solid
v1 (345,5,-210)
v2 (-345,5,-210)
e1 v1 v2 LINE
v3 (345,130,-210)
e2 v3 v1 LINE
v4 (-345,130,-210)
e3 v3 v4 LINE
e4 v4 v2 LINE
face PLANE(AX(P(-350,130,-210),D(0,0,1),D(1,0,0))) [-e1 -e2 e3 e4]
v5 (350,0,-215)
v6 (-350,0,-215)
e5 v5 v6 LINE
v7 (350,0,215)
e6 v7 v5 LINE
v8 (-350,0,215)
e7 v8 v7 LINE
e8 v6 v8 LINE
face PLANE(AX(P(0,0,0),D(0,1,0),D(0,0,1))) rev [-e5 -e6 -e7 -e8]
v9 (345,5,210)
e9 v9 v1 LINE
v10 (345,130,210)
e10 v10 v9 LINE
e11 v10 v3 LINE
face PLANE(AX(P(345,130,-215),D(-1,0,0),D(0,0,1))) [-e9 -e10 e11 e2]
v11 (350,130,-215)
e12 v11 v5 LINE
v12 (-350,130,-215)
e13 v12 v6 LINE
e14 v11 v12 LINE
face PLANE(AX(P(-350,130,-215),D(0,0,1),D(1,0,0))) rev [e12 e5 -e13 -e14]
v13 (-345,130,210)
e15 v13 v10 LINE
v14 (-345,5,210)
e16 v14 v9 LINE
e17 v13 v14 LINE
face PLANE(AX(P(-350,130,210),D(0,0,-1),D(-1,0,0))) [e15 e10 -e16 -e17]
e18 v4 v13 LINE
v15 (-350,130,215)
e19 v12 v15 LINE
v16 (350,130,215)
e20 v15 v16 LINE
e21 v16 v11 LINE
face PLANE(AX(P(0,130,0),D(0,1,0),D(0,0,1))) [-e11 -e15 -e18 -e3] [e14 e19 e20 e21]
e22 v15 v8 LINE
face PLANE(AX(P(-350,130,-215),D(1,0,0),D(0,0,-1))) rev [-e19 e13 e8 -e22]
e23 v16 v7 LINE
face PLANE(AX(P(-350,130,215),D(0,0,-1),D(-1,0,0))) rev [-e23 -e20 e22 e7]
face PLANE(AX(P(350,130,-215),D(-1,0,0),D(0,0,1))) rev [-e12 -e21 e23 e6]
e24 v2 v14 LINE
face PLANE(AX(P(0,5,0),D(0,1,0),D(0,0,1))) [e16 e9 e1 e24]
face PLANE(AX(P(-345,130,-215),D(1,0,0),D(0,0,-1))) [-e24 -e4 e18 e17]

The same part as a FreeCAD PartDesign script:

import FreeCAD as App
import Part
import Sketcher

V = App.Vector


def faces_at(feature, points):
    """Names of the faces that lie closest to the given points."""
    faces = feature.Shape.Faces
    near = lambda p: min(range(len(faces)), key=lambda i: faces[i].distToShape(Part.Vertex(*p))[0])
    return sorted({f"Face{near(p) + 1}" for p in points})


def add_polygon(sketch, points):
    """Adds a closed chain of lines whose ends are joined by coincident constraints."""
    first, n = sketch.GeometryCount, len(points)
    for a, b in zip(points, points[1:] + points[:1]):
        sketch.addGeometry(Part.LineSegment(App.Vector(*a, 0), App.Vector(*b, 0)), False)
    for i in range(n):
        sketch.addConstraint(Sketcher.Constraint("Coincident", first + i, 2, first + (i + 1) % n, 1))

doc = App.newDocument("Part")
body = doc.addObject("PartDesign::Body", "Body")

# Sketch on XZ plane
sketch1 = body.newObject("Sketcher::SketchObject", "Sketch")
sketch1.AttachmentSupport = (doc.getObject("XZ_Plane"), [""])
sketch1.MapMode = "FlatFace"
add_polygon(sketch1, [(-350, -215), (-350, 215), (350, 215), (350, -215)])  # lines 0-3
sketch1.addConstraint([
    Sketcher.Constraint("Vertical", 0),
    Sketcher.Constraint("Horizontal", 1),
    Sketcher.Constraint("Vertical", 2),
    Sketcher.Constraint("Horizontal", 3),
    Sketcher.Constraint("Symmetric", 0, 2, 2, 2, -1, 1),
    Sketcher.Constraint("DistanceX", 1, 1, 1, 2, 700.0),
    Sketcher.Constraint("DistanceY", 0, 1, 0, 2, 430.0),
])
pad1 = body.newObject("PartDesign::Pad", "Pad")
pad1.Profile = sketch1
pad1.Length = 130
pad1.Reversed = True
doc.recompute()

thickness = body.newObject("PartDesign::Thickness", "Thickness")
thickness.Base = (pad1, faces_at(pad1, [(0, 130, 0)]))
thickness.Value = 5
thickness.Reversed = True
thickness.Join = "Intersection"

doc.recompute()
